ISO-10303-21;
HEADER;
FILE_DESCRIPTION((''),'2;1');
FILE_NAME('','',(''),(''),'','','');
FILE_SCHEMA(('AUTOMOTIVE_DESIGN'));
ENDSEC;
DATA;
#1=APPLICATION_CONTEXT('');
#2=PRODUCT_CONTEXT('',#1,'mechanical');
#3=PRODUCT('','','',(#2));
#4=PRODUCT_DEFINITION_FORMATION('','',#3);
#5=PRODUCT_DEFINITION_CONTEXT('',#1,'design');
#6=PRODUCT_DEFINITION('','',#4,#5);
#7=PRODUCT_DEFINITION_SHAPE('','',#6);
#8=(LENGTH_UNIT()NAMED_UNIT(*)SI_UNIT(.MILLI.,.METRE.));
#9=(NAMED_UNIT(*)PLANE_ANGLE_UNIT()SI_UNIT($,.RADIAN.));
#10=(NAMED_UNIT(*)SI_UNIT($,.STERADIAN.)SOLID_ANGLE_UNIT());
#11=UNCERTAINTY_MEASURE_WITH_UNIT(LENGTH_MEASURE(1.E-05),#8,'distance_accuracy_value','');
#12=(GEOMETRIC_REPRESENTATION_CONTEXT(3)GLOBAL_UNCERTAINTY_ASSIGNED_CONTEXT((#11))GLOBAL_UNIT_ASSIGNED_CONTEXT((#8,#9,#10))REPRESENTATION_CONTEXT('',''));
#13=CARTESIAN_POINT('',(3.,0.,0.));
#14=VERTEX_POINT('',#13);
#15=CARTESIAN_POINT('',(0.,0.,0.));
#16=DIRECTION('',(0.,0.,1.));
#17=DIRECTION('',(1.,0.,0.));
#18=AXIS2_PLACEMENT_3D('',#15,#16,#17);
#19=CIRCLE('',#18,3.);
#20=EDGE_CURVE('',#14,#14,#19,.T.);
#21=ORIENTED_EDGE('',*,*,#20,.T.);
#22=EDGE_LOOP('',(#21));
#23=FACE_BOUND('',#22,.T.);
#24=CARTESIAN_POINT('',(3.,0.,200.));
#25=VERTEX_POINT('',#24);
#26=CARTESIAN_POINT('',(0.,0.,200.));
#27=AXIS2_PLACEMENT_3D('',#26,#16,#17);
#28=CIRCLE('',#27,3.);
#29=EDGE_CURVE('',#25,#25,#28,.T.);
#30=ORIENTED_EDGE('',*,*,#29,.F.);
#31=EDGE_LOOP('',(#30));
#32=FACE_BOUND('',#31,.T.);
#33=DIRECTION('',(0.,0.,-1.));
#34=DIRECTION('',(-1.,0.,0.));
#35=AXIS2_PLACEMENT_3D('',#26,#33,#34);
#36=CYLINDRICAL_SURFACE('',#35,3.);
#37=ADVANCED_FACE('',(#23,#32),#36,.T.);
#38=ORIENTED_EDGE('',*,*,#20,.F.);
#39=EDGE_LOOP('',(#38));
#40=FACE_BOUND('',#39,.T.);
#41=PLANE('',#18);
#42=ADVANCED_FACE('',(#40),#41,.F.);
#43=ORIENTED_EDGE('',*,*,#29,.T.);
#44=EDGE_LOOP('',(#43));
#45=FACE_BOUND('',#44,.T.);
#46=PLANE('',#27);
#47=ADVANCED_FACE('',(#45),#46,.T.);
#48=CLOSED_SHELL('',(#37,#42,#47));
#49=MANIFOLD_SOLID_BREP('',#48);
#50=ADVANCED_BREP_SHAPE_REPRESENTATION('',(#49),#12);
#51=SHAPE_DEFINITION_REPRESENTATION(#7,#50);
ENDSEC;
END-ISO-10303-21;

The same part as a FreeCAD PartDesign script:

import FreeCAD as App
import Part
import Sketcher

V = App.Vector

doc = App.newDocument("Part")
body = doc.addObject("PartDesign::Body", "Body")

# Sketch on XY plane
sketch1 = body.newObject("Sketcher::SketchObject", "Sketch")
sketch1.AttachmentSupport = (doc.getObject("XY_Plane"), [""])
sketch1.MapMode = "FlatFace"
sketch1.addGeometry(Part.Circle(V(0, 0, 0), V(0, 0, 1), 3), False)
sketch1.addConstraint([
    Sketcher.Constraint("Coincident", 0, 3, -1, 1),
    Sketcher.Constraint("Diameter", 0, 6.0),
])
pad1 = body.newObject("PartDesign::Pad", "Pad")
pad1.Profile = sketch1
pad1.Length = 200

doc.recompute()
